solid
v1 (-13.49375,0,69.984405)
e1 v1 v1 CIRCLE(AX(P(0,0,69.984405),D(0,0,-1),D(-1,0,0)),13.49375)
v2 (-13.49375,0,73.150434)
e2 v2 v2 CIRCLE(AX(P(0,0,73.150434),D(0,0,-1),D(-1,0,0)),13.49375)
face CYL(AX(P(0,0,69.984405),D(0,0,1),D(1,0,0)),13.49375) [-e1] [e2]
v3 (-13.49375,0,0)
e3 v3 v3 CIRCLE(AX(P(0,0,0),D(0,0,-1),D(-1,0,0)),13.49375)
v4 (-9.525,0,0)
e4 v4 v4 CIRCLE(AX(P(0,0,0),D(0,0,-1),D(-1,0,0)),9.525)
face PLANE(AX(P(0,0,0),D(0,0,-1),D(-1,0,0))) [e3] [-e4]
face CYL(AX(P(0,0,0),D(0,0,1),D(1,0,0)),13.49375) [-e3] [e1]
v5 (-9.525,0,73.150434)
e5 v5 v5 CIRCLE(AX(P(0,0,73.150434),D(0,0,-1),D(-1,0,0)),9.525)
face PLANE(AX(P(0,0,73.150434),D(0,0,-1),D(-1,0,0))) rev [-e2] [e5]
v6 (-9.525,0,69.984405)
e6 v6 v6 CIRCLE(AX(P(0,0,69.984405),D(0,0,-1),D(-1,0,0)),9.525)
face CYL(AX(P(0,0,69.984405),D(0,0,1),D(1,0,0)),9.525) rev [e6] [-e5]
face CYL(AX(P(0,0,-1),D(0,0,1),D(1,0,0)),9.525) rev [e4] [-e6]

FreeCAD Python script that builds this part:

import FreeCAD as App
import Part
import Sketcher
Q = App.Units.Quantity

doc = App.newDocument("Part")
body = doc.addObject("PartDesign::Body", "Body")

# Sketch on XY plane
sketch1 = body.newObject("Sketcher::SketchObject", "Sketch")
sketch1.AttachmentSupport = (doc.getObject("XY_Plane"), [""])
sketch1.MapMode = "FlatFace"
sketch1.addGeometry(Part.Circle(App.Vector(0, 0, 0), App.Vector(0, 0, 1), 13), False)
sketch1.addConstraint([
    Sketcher.Constraint("Coincident", 0, 3, -1, 1),
    Sketcher.Constraint("Diameter", 0, Q("1.0625 in")),
])

# Sketch on XZ plane
sketch2 = body.newObject("Sketcher::SketchObject", "Sketch001")
sketch2.AttachmentSupport = (doc.getObject("XZ_Plane"), [""])
sketch2.MapMode = "FlatFace"
sketch2.addGeometry(Part.LineSegment(App.Vector(0, 0, 0), App.Vector(0, 73, 0)), False)
sketch2.addConstraint([
    Sketcher.Constraint("Vertical", 0),
    Sketcher.Constraint("Coincident", 0, 1, -1, 1),
    Sketcher.Constraint("DistanceY", 0, 1, 0, 2, 73.150434),
])
doc.recompute()

additivepipe = body.newObject("PartDesign::AdditivePipe", "AdditivePipe")
additivepipe.Profile = sketch1
additivepipe.Spine = (sketch2, ["Edge1"])

# Sketch on XY plane
sketch3 = body.newObject("Sketcher::SketchObject", "Sketch002")
sketch3.AttachmentSupport = (doc.getObject("XY_Plane"), [""])
sketch3.MapMode = "FlatFace"
sketch3.addGeometry(Part.Circle(App.Vector(0, 0, 0), App.Vector(0, 0, 1), 10), False)
sketch3.addConstraint([
    Sketcher.Constraint("Coincident", 0, 3, -1, 1),
    Sketcher.Constraint("Diameter", 0, Q("0.75 in")),
])

# Sketch on XZ plane
sketch4 = body.newObject("Sketcher::SketchObject", "Sketch003")
sketch4.AttachmentSupport = (doc.getObject("XZ_Plane"), [""])
sketch4.MapMode = "FlatFace"
sketch4.addGeometry(Part.LineSegment(App.Vector(0, 0, 0), App.Vector(0, 73, 0)), False)
sketch4.addConstraint([
    Sketcher.Constraint("Vertical", 0),
    Sketcher.Constraint("Coincident", 0, 1, -1, 1),
    Sketcher.Constraint("DistanceY", 0, 1, 0, 2, 73.150434),
])
doc.recompute()

subtractivepipe = body.newObject("PartDesign::SubtractivePipe", "SubtractivePipe")
subtractivepipe.Profile = sketch3
subtractivepipe.Spine = (sketch4, ["Edge1"])

doc.recompute()
